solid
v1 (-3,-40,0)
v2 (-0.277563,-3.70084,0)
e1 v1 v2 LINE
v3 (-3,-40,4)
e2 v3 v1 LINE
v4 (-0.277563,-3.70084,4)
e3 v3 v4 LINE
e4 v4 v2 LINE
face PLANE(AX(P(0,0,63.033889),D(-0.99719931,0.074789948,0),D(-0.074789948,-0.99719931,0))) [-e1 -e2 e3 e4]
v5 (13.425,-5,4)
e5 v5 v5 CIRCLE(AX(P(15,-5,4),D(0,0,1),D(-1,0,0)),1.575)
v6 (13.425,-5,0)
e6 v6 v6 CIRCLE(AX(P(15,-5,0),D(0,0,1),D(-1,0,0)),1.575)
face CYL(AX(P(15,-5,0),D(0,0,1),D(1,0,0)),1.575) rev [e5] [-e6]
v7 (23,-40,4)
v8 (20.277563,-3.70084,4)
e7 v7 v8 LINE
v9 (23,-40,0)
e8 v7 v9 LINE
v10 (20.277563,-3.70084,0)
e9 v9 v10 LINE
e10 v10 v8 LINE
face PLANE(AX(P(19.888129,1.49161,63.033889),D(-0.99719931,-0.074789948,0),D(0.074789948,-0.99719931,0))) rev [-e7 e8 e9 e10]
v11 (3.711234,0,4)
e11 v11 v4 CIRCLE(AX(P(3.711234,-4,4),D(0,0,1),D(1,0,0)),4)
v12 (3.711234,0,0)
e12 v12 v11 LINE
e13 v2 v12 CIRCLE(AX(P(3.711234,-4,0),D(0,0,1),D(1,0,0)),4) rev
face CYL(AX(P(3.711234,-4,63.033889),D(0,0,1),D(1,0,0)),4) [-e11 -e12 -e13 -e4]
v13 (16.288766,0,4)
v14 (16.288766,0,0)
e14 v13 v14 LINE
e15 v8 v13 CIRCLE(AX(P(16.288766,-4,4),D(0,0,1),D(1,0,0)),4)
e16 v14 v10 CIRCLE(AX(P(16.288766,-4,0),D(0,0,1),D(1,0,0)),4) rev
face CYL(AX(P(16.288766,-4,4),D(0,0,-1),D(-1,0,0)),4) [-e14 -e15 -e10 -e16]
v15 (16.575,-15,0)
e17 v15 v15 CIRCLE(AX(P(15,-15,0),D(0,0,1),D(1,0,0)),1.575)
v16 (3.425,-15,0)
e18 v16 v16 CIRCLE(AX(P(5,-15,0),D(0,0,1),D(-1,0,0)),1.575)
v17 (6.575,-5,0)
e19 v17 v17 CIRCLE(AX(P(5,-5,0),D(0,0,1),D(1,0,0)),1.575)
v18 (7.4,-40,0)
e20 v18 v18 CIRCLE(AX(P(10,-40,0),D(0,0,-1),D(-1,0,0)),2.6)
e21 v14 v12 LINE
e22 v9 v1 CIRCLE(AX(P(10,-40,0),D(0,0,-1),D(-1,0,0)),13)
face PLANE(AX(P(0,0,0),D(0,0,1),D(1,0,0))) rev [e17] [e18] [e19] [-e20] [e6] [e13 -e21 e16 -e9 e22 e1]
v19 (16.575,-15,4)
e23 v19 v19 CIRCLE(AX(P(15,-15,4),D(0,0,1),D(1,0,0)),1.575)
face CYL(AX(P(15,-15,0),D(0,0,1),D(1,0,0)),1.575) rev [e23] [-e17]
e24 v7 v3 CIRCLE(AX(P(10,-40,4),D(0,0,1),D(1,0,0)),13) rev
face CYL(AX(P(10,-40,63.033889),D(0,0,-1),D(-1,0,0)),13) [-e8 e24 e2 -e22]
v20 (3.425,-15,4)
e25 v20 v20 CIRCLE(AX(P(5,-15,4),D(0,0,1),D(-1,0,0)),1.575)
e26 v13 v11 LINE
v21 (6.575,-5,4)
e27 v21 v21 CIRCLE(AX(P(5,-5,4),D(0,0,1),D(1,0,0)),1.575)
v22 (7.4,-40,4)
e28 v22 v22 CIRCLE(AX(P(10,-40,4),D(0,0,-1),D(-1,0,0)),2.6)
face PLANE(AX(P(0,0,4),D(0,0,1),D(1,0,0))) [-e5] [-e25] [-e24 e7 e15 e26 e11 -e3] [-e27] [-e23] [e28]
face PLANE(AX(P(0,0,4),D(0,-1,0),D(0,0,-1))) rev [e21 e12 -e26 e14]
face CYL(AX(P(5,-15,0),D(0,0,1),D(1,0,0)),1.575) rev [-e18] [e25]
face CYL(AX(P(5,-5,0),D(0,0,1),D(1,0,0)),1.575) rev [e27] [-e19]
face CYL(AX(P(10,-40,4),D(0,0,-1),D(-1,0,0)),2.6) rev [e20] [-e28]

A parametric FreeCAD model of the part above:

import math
import FreeCAD as App
import Part
import Sketcher

V = App.Vector
Q = App.Units.Quantity


def edges_at(feature, points):
    """Names of the edges that pass closest to the given points."""
    edges = feature.Shape.Edges
    near = lambda p: min(range(len(edges)), key=lambda i: edges[i].distToShape(Part.Vertex(*p))[0])
    return sorted({f"Edge{near(p) + 1}" for p in points})


def add_polygon(sketch, points):
    """Adds a closed chain of lines whose ends are joined by coincident constraints."""
    first, n = sketch.GeometryCount, len(points)
    for a, b in zip(points, points[1:] + points[:1]):
        sketch.addGeometry(Part.LineSegment(App.Vector(*a, 0), App.Vector(*b, 0)), False)
    for i in range(n):
        sketch.addConstraint(Sketcher.Constraint("Coincident", first + i, 2, first + (i + 1) % n, 1))

doc = App.newDocument("Part")
body = doc.addObject("PartDesign::Body", "Body")

# Sketch on XY plane
sketch1 = body.newObject("Sketcher::SketchObject", "Sketch")
sketch1.AttachmentSupport = (doc.getObject("XY_Plane"), [""])
sketch1.MapMode = "FlatFace"
add_polygon(sketch1, [(0, 0), (0, -40), (20, -40), (20, 0)])  # lines 0-3
sketch1.addConstraint([
    Sketcher.Constraint("Vertical", 0),
    Sketcher.Constraint("Horizontal", 1),
    Sketcher.Constraint("Vertical", 2),
    Sketcher.Constraint("Horizontal", 3),
    Sketcher.Constraint("Coincident", 3, 2, -1, 1),
    Sketcher.Constraint("DistanceX", 1, 1, 1, 2, Q("20 mm")),
    Sketcher.Constraint("DistanceY", 0, 2, 0, 1, Q("40 mm")),
])
pad1 = body.newObject("PartDesign::Pad", "Pad")
pad1.Profile = sketch1
pad1.Length = 4

# Sketch on XY plane
sketch2 = body.newObject("Sketcher::SketchObject", "Sketch001")
sketch2.AttachmentSupport = (doc.getObject("XY_Plane"), [""])
sketch2.MapMode = "FlatFace"
sketch2.AttachmentOffset = App.Placement(V(0, 0, 4), App.Rotation())
sketch2.addGeometry([
    Part.Circle(V(5, -5, 0), V(0, 0, 1), 1.575),
    Part.Circle(V(15, -5, 0), V(0, 0, 1), 1.575),
    Part.Circle(V(15, -15, 0), V(0, 0, 1), 1.575),
    Part.Circle(V(5, -15, 0), V(0, 0, 1), 1.575),
], False)
sketch2.addConstraint([
    Sketcher.Constraint("Equal", 0, 1),
    Sketcher.Constraint("Equal", 1, 2),
    Sketcher.Constraint("Equal", 2, 3),
    Sketcher.Constraint("Horizontal", 0, 3, 1, 3),
    Sketcher.Constraint("Horizontal", 2, 3, 3, 3),
    Sketcher.Constraint("Vertical", 1, 3, 2, 3),
    Sketcher.Constraint("Vertical", 0, 3, 3, 3),
    Sketcher.Constraint("Diameter", 0, Q("3.15 mm")),
    Sketcher.Constraint("DistanceX", -1, 1, 0, 3, Q("5 mm")),
    Sketcher.Constraint("DistanceY", 0, 3, -1, 1, Q("5 mm")),
    Sketcher.Constraint("DistanceX", -1, 1, 1, 3, Q("15 mm")),
    Sketcher.Constraint("DistanceY", 2, 3, -1, 1, Q("15 mm")),
])
pocket1 = body.newObject("PartDesign::Pocket", "Pocket")
pocket1.Profile = sketch2
pocket1.Type = "ThroughAll"

# Sketch on XY plane
sketch3 = body.newObject("Sketcher::SketchObject", "Sketch002")
sketch3.AttachmentSupport = (doc.getObject("XY_Plane"), [""])
sketch3.MapMode = "FlatFace"
sketch3.addGeometry([
    Part.LineSegment(V(20, 0, 0), V(23, -40, 0)),  # 0
    Part.ArcOfCircle(Part.Circle(V(10, -40, 0), V(0, 0, 1), 13), math.radians(180), math.radians(360)),  # 1
    Part.LineSegment(V(-3, -40, 0), V(0, 0, 0)),  # 2
    Part.LineSegment(V(0, 0, 0), V(0, -40, 0)),  # 3
    Part.LineSegment(V(0, -40, 0), V(20, -40, 0)),  # 4
    Part.LineSegment(V(20, -40, 0), V(20, 0, 0)),  # 5
], False)
sketch3.addConstraint([
    Sketcher.Constraint("Coincident", 0, 2, 1, 2),
    Sketcher.Constraint("Coincident", 1, 1, 2, 1),
    Sketcher.Constraint("Coincident", 2, 2, 3, 1),
    Sketcher.Constraint("Coincident", 3, 2, 4, 1),
    Sketcher.Constraint("Coincident", 4, 2, 5, 1),
    Sketcher.Constraint("Coincident", 5, 2, 0, 1),
    Sketcher.Constraint("Vertical", 3),
    Sketcher.Constraint("Horizontal", 4),
    Sketcher.Constraint("Vertical", 5),
    Sketcher.Constraint("Coincident", 2, 2, -1, 1),
    Sketcher.Constraint("PointOnObject", 5, 2, -1),
    Sketcher.Constraint("Horizontal", 1, 3, 0, 2),
    Sketcher.Constraint("Horizontal", 0, 2, 1, 1),
    Sketcher.Constraint("Horizontal", 1, 1, 3, 2),
    Sketcher.Constraint("Equal", 0, 2),
    Sketcher.Constraint("Radius", 1, Q("13 mm")),
    Sketcher.Constraint("DistanceX", 4, 1, 4, 2, Q("20 mm")),
    Sketcher.Constraint("DistanceY", 3, 2, 3, 1, Q("40 mm")),
])
pad2 = body.newObject("PartDesign::Pad", "Pad001")
pad2.Profile = sketch3
pad2.Length = 4

# Sketch on XY plane
sketch4 = body.newObject("Sketcher::SketchObject", "Sketch003")
sketch4.AttachmentSupport = (doc.getObject("XY_Plane"), [""])
sketch4.MapMode = "FlatFace"
sketch4.addGeometry(Part.Circle(V(10, -40, 0), V(0, 0, 1), 2.6), False)
sketch4.addConstraint([
    Sketcher.Constraint("Diameter", 0, Q("5.2 mm")),
    Sketcher.Constraint("DistanceX", -1, 1, 0, 3, Q("10 mm")),
    Sketcher.Constraint("DistanceY", 0, 3, -1, 1, Q("40 mm")),
])
pocket2 = body.newObject("PartDesign::Pocket", "Pocket001")
pocket2.Profile = sketch4
pocket2.Type = "ThroughAll"
pocket2.Reversed = True
doc.recompute()

fillet = body.newObject("PartDesign::Fillet", "Fillet")
fillet.Base = (pocket2, edges_at(pocket2, [(0, 0, 2), (20, 0, 2)]))
fillet.Radius = 4

doc.recompute()
